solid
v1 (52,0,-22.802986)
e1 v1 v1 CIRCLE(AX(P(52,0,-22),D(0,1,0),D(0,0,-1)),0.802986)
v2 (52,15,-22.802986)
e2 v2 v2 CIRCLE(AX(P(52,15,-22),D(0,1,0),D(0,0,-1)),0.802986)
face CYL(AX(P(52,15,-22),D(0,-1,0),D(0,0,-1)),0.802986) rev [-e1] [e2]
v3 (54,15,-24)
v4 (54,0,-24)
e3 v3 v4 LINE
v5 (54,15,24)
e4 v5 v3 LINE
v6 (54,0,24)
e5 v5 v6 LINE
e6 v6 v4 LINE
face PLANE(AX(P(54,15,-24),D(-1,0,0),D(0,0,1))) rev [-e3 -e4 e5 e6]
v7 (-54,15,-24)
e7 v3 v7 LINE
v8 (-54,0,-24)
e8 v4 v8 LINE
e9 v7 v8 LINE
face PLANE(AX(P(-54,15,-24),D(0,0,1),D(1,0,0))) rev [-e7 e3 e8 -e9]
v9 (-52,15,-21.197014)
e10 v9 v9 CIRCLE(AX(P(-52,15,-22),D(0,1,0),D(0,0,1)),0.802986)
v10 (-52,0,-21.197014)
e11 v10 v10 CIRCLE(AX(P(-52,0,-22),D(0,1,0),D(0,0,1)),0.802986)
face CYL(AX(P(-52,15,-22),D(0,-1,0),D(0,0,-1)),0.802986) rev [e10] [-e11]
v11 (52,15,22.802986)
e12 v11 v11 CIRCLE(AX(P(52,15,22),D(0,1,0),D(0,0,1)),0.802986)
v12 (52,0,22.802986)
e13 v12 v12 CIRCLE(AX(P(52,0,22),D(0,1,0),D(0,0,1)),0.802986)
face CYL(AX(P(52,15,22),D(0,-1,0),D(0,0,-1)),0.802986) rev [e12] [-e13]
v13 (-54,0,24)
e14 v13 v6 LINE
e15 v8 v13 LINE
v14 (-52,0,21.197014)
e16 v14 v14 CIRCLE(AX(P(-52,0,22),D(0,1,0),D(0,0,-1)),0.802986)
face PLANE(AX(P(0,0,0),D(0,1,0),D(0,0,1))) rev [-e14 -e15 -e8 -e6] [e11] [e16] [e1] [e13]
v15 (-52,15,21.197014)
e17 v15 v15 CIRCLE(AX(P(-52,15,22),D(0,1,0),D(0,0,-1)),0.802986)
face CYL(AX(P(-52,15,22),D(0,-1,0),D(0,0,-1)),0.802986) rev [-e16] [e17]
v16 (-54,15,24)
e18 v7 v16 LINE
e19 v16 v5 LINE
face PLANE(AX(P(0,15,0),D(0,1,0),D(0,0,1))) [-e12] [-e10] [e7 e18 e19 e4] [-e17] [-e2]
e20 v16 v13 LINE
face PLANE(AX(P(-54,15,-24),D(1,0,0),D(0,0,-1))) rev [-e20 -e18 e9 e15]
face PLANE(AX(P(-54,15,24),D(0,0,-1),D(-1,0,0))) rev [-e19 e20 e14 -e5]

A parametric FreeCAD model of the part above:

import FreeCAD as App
import Part
import Sketcher


def add_polygon(sketch, points):
    """Adds a closed chain of lines whose ends are joined by coincident constraints."""
    first, n = sketch.GeometryCount, len(points)
    for a, b in zip(points, points[1:] + points[:1]):
        sketch.addGeometry(Part.LineSegment(App.Vector(*a, 0), App.Vector(*b, 0)), False)
    for i in range(n):
        sketch.addConstraint(Sketcher.Constraint("Coincident", first + i, 2, first + (i + 1) % n, 1))

doc = App.newDocument("Part")
params = doc.addObject("Spreadsheet::Sheet", "Params")
for row, (alias, value) in enumerate([
    ("sketch1_width", "108 mm"),
    ("sketch1_height", "48 mm"),
    ("pad1_length", "15 mm"),
], start=1):
    params.set(f"A{row}", alias)
    params.set(f"B{row}", "=" + value)
    params.setAlias(f"B{row}", alias)

body = doc.addObject("PartDesign::Body", "Body")

# Sketch on XZ plane
sketch1 = body.newObject("Sketcher::SketchObject", "Sketch")
sketch1.AttachmentSupport = (doc.getObject("XZ_Plane"), [""])
sketch1.MapMode = "FlatFace"
add_polygon(sketch1, [(-54, -24), (-54, 24), (54, 24), (54, -24)])  # lines 0-3
sketch1.addGeometry(Part.Circle(App.Vector(-52, 22, 0), App.Vector(0, 0, 1), 0.802986), False)  # 4
sketch1.addGeometry(Part.Circle(App.Vector(52, 22, 0), App.Vector(0, 0, 1), 0.802986), False)  # 5
sketch1.addGeometry(Part.Circle(App.Vector(-52, -22, 0), App.Vector(0, 0, 1), 0.802986), False)  # 6
sketch1.addGeometry(Part.Circle(App.Vector(52, -22, 0), App.Vector(0, 0, 1), 0.802986), False)  # 7
sketch1.addConstraint([
    Sketcher.Constraint("Vertical", 0),
    Sketcher.Constraint("Horizontal", 1),
    Sketcher.Constraint("Vertical", 2),
    Sketcher.Constraint("Horizontal", 3),
    Sketcher.Constraint("Equal", 4, 5),
    Sketcher.Constraint("Equal", 5, 6),
    Sketcher.Constraint("Equal", 6, 7),
    Sketcher.Constraint("Symmetric", 5, 3, 6, 3, -1, 1),
    Sketcher.Constraint("Symmetric", 4, 3, 7, 3, -1, 1),
    Sketcher.Constraint("Symmetric", 0, 2, 2, 2, -1, 1),
    Sketcher.Constraint("Symmetric", 4, 3, 5, 3, -2),
    Sketcher.Constraint("DistanceX", 1, 1, 1, 2, 108.0),
    Sketcher.Constraint("DistanceY", 0, 1, 0, 2, 48.0),
    Sketcher.Constraint("DistanceX", 4, 3, -1, 1, 52.0),
    Sketcher.Constraint("DistanceY", -1, 1, 4, 3, 22.0),
    Sketcher.Constraint("Diameter", 4, 1.605972),
])
sketch1.setExpression("Constraints[15]", "Params.sketch1_width")
sketch1.setExpression("Constraints[16]", "Params.sketch1_height")
pad1 = body.newObject("PartDesign::Pad", "Pad")
pad1.Profile = sketch1
pad1.setExpression("Length", "Params.pad1_length")
pad1.Reversed = True

doc.recompute()
